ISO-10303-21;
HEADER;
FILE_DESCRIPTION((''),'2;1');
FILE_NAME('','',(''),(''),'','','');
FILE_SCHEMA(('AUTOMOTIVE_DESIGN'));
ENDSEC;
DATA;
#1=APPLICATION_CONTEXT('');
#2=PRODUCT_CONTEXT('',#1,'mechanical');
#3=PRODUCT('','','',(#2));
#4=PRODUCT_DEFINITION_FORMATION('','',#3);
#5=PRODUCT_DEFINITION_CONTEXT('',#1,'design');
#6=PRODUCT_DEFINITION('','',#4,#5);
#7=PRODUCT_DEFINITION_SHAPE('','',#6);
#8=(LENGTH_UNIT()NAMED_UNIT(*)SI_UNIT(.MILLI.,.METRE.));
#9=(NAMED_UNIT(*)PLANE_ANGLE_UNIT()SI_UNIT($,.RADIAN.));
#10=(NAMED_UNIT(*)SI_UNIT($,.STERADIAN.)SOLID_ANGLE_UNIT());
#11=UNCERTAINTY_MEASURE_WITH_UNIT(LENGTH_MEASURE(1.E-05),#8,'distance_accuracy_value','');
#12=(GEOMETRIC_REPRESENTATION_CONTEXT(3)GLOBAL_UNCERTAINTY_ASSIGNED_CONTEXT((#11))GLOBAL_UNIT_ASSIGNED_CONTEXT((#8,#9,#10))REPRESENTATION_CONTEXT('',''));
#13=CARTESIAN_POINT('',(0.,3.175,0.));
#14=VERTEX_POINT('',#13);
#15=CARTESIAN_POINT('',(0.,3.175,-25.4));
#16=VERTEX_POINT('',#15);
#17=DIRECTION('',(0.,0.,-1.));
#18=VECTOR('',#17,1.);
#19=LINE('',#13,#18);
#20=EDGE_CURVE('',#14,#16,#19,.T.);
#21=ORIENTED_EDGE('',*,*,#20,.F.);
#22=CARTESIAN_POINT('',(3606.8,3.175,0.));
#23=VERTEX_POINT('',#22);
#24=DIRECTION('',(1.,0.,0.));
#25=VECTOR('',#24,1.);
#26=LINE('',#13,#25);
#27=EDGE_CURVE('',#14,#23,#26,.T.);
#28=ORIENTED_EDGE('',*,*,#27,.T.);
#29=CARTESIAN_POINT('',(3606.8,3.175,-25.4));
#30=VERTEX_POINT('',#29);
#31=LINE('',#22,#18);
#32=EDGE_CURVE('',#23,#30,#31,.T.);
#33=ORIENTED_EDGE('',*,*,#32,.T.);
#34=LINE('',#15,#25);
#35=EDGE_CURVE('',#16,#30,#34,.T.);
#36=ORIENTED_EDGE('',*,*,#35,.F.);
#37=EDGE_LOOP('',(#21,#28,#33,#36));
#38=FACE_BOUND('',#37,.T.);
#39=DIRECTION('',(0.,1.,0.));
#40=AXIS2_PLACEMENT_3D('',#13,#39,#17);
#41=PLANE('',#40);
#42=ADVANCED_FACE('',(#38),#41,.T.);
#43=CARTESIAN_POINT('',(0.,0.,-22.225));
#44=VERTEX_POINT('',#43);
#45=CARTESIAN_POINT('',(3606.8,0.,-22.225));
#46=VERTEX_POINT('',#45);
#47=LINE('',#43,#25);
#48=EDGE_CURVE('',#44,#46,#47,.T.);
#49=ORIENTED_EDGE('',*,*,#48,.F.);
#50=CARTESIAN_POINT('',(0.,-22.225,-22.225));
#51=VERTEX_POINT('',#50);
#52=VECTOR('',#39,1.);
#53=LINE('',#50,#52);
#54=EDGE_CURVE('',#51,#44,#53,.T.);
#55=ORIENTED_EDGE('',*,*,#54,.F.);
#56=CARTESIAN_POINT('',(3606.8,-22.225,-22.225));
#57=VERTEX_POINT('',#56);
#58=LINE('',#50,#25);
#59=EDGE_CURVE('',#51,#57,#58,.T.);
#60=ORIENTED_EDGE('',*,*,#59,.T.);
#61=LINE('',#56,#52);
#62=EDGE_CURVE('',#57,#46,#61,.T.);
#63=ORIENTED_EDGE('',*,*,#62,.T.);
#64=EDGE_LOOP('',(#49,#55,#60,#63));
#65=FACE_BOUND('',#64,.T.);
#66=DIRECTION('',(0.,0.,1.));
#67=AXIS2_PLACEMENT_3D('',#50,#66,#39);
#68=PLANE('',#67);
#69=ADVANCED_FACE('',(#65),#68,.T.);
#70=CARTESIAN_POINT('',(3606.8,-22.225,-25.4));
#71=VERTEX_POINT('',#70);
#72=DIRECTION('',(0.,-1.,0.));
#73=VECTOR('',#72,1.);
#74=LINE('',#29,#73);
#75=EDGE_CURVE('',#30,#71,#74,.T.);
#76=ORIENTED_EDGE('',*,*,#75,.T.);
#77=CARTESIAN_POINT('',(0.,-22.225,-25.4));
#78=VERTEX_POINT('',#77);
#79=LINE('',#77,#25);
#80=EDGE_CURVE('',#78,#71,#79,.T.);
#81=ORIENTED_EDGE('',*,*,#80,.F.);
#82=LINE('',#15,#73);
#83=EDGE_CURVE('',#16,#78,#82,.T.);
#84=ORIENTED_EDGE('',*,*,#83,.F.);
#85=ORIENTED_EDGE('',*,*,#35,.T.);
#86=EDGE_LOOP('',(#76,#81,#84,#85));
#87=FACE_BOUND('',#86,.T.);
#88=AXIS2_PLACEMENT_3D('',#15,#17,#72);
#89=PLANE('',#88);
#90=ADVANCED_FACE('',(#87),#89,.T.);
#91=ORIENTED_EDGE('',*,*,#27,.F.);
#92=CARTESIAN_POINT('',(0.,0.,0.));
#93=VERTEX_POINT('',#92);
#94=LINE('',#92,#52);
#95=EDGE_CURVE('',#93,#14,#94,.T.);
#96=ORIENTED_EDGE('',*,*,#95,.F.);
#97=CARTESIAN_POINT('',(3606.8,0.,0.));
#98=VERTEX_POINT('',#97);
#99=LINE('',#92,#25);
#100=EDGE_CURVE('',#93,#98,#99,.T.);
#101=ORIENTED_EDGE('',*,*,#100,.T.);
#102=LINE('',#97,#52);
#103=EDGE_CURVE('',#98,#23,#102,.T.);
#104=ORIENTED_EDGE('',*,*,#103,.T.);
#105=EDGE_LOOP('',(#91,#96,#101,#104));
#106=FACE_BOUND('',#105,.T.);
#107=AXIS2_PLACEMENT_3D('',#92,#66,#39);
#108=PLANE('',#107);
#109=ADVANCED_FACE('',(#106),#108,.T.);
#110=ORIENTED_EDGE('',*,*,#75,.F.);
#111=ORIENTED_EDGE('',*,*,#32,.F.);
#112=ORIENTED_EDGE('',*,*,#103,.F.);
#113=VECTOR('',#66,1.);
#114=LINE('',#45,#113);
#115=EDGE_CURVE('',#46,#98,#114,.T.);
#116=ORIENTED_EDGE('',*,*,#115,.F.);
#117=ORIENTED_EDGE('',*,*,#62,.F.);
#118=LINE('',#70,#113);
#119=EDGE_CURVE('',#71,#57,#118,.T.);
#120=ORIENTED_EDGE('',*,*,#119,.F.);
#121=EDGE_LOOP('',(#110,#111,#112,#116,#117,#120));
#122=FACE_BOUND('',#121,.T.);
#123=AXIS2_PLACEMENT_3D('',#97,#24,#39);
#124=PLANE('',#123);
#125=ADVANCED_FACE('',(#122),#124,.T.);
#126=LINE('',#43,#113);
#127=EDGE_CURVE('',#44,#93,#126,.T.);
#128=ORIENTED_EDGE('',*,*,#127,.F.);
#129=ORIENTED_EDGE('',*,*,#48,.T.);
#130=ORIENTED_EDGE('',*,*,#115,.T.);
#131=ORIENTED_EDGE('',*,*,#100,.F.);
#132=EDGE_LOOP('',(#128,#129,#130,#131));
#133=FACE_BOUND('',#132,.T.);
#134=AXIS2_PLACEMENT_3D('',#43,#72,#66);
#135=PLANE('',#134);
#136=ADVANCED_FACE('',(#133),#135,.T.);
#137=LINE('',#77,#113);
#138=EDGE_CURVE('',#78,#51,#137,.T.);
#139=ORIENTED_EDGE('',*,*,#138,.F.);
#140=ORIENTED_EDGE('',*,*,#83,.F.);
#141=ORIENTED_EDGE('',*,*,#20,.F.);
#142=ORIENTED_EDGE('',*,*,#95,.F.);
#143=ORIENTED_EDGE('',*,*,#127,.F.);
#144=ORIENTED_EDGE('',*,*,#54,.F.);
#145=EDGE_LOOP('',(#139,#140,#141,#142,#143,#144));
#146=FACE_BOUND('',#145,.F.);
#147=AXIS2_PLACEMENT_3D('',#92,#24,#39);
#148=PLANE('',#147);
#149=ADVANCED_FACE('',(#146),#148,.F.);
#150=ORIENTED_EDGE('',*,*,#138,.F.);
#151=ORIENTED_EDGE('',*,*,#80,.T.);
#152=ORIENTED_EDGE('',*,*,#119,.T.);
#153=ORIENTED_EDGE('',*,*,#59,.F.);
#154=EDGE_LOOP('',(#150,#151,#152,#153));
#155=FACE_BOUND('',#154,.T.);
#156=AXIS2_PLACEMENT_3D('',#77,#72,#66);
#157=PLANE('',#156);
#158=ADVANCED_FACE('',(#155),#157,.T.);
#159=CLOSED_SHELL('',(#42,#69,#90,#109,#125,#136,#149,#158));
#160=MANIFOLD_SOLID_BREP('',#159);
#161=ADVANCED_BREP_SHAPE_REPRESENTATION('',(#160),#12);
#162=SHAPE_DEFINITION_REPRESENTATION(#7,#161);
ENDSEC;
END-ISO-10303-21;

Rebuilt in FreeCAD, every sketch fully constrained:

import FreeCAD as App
import Part
import Sketcher
Q = App.Units.Quantity


def add_polygon(sketch, points):
    """Adds a closed chain of lines whose ends are joined by coincident constraints."""
    first, n = sketch.GeometryCount, len(points)
    for a, b in zip(points, points[1:] + points[:1]):
        sketch.addGeometry(Part.LineSegment(App.Vector(*a, 0), App.Vector(*b, 0)), False)
    for i in range(n):
        sketch.addConstraint(Sketcher.Constraint("Coincident", first + i, 2, first + (i + 1) % n, 1))

doc = App.newDocument("Part")
body = doc.addObject("PartDesign::Body", "Body")

# Sketch on YZ plane
sketch1 = body.newObject("Sketcher::SketchObject", "Sketch")
sketch1.AttachmentSupport = (doc.getObject("YZ_Plane"), [""])
sketch1.MapMode = "FlatFace"
add_polygon(sketch1, [(3.2, 0), (0, 0), (0, -22.2), (-22.2, -22.2), (-22.2, -25.4), (3.2, -25.4)])  # lines 0-5
sketch1.addConstraint([
    Sketcher.Constraint("Horizontal", 0),
    Sketcher.Constraint("Vertical", 1),
    Sketcher.Constraint("Horizontal", 2),
    Sketcher.Constraint("Vertical", 3),
    Sketcher.Constraint("Horizontal", 4),
    Sketcher.Constraint("Vertical", 5),
    Sketcher.Constraint("Coincident", 0, 2, -1, 1),
    Sketcher.Constraint("Equal", 2, 1),
    Sketcher.Constraint("Equal", 0, 3),
    Sketcher.Constraint("DistanceX", 4, 1, 4, 2, Q("1 in")),
    Sketcher.Constraint("DistanceX", 0, 2, 0, 1, Q("0.125 in")),
])
pad1 = body.newObject("PartDesign::Pad", "Pad")
pad1.Profile = sketch1
pad1.Length = Q("142 in")

doc.recompute()
